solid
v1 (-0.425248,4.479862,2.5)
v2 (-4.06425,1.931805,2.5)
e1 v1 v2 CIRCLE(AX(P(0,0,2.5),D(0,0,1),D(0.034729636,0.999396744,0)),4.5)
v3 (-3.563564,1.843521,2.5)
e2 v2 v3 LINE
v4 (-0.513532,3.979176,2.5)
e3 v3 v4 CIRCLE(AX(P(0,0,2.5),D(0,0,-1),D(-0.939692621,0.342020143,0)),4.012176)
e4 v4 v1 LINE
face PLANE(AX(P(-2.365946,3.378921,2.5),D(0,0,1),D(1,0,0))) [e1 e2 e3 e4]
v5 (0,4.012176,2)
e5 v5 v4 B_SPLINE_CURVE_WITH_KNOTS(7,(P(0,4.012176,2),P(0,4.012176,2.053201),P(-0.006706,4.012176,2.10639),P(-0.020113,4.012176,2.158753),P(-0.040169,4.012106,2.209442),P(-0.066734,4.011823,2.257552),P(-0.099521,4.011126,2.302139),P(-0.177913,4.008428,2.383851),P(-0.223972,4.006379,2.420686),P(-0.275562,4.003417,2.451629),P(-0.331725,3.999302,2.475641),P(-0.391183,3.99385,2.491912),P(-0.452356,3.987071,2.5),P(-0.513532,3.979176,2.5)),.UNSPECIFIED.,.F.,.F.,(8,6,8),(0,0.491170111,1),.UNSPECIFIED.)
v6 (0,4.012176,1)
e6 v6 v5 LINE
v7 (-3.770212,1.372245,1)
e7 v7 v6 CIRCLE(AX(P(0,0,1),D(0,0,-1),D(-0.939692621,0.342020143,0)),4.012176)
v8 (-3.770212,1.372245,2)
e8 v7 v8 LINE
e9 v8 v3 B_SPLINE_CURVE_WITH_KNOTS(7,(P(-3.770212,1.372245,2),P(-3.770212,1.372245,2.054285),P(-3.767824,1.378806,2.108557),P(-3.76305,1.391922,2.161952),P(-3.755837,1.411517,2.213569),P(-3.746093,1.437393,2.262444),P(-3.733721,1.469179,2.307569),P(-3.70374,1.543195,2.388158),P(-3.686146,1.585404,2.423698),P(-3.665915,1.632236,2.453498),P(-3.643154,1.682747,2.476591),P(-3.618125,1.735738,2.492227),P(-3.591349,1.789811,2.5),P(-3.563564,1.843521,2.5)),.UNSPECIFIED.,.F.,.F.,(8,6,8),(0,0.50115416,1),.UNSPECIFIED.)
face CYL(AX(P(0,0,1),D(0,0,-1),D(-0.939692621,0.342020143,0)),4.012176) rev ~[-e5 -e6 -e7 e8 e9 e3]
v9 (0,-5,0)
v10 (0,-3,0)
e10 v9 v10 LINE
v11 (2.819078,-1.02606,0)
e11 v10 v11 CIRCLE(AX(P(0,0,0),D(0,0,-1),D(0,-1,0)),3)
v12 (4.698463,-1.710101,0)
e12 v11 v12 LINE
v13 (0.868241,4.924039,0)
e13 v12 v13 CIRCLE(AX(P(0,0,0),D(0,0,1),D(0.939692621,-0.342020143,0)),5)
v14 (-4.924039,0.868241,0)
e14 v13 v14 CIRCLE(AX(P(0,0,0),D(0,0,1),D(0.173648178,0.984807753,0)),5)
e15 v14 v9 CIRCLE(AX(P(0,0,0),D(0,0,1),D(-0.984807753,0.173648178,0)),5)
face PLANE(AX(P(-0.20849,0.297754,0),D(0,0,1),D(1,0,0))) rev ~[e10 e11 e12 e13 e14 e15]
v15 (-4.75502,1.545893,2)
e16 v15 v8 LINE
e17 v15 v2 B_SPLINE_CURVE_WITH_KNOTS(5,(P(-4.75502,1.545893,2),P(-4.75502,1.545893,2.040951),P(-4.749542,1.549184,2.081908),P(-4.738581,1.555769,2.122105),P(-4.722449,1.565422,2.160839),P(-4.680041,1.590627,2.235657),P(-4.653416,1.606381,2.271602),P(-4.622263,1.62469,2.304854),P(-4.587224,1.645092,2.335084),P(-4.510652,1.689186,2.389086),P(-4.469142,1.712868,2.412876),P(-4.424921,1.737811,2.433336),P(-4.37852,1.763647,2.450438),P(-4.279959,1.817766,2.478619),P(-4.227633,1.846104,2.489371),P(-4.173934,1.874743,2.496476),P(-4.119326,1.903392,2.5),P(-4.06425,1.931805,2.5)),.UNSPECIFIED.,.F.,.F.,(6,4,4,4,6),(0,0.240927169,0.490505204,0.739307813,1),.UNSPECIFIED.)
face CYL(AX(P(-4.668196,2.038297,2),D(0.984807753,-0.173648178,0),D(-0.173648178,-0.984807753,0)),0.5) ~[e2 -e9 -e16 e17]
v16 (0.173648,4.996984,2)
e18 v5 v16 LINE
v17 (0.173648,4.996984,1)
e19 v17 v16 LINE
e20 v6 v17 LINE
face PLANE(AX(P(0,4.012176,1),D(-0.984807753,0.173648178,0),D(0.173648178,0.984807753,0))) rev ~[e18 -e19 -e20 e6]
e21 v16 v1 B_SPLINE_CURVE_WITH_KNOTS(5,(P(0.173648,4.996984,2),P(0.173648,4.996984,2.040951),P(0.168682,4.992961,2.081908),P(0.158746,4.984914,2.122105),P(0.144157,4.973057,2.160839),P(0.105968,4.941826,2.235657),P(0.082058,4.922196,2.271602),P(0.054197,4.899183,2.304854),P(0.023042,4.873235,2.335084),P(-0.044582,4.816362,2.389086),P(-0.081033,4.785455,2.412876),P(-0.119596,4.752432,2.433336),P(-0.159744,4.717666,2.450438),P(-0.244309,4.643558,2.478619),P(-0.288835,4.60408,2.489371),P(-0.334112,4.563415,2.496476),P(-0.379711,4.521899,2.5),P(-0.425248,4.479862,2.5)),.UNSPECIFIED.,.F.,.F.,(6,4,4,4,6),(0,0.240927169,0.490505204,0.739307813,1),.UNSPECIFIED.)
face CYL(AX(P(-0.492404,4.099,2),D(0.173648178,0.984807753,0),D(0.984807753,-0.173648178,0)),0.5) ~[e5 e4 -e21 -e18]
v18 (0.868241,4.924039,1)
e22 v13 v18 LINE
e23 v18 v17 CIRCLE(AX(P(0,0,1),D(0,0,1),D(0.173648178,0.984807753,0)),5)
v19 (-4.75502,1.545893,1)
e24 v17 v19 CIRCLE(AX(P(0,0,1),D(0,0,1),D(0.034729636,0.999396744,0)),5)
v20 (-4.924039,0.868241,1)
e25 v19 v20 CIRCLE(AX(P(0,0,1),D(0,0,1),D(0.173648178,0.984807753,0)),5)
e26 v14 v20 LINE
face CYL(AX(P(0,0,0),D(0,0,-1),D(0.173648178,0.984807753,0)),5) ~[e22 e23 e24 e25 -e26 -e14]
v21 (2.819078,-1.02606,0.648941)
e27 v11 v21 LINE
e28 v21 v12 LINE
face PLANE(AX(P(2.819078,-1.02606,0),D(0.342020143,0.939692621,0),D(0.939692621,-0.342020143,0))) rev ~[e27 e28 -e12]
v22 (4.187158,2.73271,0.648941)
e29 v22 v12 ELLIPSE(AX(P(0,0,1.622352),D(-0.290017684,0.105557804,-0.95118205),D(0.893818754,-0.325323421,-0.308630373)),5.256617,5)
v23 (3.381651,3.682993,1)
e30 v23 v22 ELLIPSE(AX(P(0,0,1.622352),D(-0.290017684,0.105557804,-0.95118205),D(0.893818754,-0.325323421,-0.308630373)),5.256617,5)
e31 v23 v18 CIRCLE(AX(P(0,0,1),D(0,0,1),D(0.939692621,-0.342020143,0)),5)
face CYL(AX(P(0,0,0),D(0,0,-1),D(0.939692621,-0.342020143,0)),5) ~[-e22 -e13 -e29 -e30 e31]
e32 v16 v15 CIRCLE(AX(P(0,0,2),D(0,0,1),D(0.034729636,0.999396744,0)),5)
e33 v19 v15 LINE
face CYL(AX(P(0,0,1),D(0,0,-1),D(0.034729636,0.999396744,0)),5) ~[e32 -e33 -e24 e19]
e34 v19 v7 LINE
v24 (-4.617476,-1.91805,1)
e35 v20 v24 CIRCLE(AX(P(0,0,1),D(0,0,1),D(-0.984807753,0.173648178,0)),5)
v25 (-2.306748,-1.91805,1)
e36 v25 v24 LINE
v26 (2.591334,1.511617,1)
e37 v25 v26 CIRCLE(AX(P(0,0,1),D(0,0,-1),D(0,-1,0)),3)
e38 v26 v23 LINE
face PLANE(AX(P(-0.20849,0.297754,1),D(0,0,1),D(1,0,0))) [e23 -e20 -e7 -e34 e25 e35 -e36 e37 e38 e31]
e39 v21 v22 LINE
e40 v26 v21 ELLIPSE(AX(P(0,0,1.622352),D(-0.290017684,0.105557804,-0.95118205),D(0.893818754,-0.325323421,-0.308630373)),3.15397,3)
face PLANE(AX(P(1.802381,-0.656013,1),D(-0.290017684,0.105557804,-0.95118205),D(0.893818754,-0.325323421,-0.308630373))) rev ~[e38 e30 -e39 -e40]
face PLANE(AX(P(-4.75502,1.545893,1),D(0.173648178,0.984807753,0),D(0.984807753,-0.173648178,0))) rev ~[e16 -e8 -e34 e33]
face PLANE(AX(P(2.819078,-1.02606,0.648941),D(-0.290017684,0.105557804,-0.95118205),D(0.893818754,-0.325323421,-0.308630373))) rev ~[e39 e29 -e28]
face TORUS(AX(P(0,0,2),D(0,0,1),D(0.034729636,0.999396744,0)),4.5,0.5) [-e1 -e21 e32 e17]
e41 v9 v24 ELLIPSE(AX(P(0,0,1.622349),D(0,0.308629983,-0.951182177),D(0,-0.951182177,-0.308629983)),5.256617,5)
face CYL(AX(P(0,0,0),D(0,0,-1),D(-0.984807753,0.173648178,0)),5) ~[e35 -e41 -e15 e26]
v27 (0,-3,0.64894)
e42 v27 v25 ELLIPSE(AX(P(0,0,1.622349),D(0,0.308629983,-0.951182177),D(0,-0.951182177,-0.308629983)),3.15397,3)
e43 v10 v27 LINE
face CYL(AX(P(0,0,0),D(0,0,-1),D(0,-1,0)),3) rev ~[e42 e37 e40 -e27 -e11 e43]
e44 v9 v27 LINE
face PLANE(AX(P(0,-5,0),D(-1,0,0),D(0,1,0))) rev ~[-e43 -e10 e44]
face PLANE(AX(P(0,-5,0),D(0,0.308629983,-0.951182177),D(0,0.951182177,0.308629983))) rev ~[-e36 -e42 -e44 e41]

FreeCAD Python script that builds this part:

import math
import FreeCAD as App
import Part
import Sketcher
from FreeCAD import Vector
Q = App.Units.Quantity


def edges_at(feature, points):
    """Names of the edges that pass closest to the given points."""
    edges = feature.Shape.Edges
    near = lambda p: min(range(len(edges)), key=lambda i: edges[i].distToShape(Part.Vertex(*p))[0])
    return sorted({f"Edge{near(p) + 1}" for p in points})


def add_polygon(sketch, points):
    """Adds a closed chain of lines whose ends are joined by coincident constraints."""
    first, n = sketch.GeometryCount, len(points)
    for a, b in zip(points, points[1:] + points[:1]):
        sketch.addGeometry(Part.LineSegment(App.Vector(*a, 0), App.Vector(*b, 0)), False)
    for i in range(n):
        sketch.addConstraint(Sketcher.Constraint("Coincident", first + i, 2, first + (i + 1) % n, 1))

doc = App.newDocument("Part")
body = doc.addObject("PartDesign::Body", "Body")

# Sketch on XY plane
sketch1 = body.newObject("Sketcher::SketchObject", "Sketch")
sketch1.AttachmentSupport = (doc.getObject("XY_Plane"), [""])
sketch1.MapMode = "FlatFace"
sketch1.addGeometry(Part.ArcOfCircle(Part.Circle(Vector(0, 0, 0), Vector(0, 0, 1), 3), math.radians(-20), math.radians(270)), False)
sketch1.addGeometry(Part.LineSegment(Vector(2.8, -1, 0), Vector(4.7, -1.7, 0)), False)
sketch1.addGeometry(Part.ArcOfCircle(Part.Circle(Vector(0, 0, 0), Vector(0, 0, 1), 5), math.radians(-20), math.radians(80)), False)
sketch1.addGeometry(Part.ArcOfCircle(Part.Circle(Vector(0, 0, 0), Vector(0, 0, 1), 5), math.radians(80), math.radians(170)), False)
sketch1.addGeometry(Part.ArcOfCircle(Part.Circle(Vector(0, 0, 0), Vector(0, 0, 1), 5), math.radians(170), math.radians(270)), False)
sketch1.addGeometry(Part.LineSegment(Vector(0, -5, 0), Vector(0, -3, 0)), False)
sketch1.addConstraint(Sketcher.Constraint("Coincident", 0, 1, 1, 1))
sketch1.addConstraint(Sketcher.Constraint("Coincident", 1, 2, 2, 1))
sketch1.addConstraint(Sketcher.Constraint("Tangent", 2, 2, 3, 1))
sketch1.addConstraint(Sketcher.Constraint("Tangent", 3, 2, 4, 1))
sketch1.addConstraint(Sketcher.Constraint("Coincident", 4, 2, 5, 1))
sketch1.addConstraint(Sketcher.Constraint("Coincident", 5, 2, 0, 2))
sketch1.addConstraint(Sketcher.Constraint("Vertical", 5))
sketch1.addConstraint(Sketcher.Constraint("Coincident", 0, 3, -1, 1))
sketch1.addConstraint(Sketcher.Constraint("Coincident", 2, 3, -1, 1))
sketch1.addConstraint(Sketcher.Constraint("Coincident", 4, 3, -1, 1))
sketch1.addConstraint(Sketcher.Constraint("PointOnObject", 4, 2, -2))
sketch1.addConstraint(Sketcher.Constraint("Radius", 0, Q("3 mm")))
sketch1.addConstraint(Sketcher.Constraint("Radius", 2, Q("5 mm")))
sketch1.addConstraint(Sketcher.Constraint("Angle", 1, Q("-20 deg")))
sketch1.addConstraint(Sketcher.Constraint("DistanceY", 1, 2, -1, 1, Q("1.710101 mm")))
sketch1.addConstraint(Sketcher.Constraint("DistanceY", 0, 1, 2, 2, Q("5.950099 mm")))
sketch1.addConstraint(Sketcher.Constraint("DistanceX", 3, 2, -1, 1, Q("4.924039 mm")))
pad1 = body.newObject("PartDesign::Pad", "Pad")
pad1.Profile = sketch1
pad1.Length = 1

# Sketch on an angled plane
sketch2 = body.newObject("Sketcher::SketchObject", "Sketch001")
sketch2.Placement = App.Placement(Vector(0, 0, 0), App.Rotation(Vector(0.939692621, -0.342020143, 0), Vector(0, 0, 1), Vector(-0.342020143, -0.939692621, 0), "ZXY"))
add_polygon(sketch2, [(3, 0.6), (5, 0), (5, 1), (1.9, 1)])  # lines 0-3
sketch2.addConstraint(Sketcher.Constraint("Vertical", 1))
sketch2.addConstraint(Sketcher.Constraint("Horizontal", 2))
sketch2.addConstraint(Sketcher.Constraint("PointOnObject", 0, 2, -1))
sketch2.addConstraint(Sketcher.Constraint("Parallel", 0, 3))
sketch2.addConstraint(Sketcher.Constraint("DistanceY", 1, 1, 1, 2, Q("1 mm")))
sketch2.addConstraint(Sketcher.Constraint("DistanceX", -1, 1, 0, 2, Q("5 mm")))
sketch2.addConstraint(Sketcher.Constraint("DistanceX", -1, 1, 3, 2, Q("3 mm")))
sketch2.addConstraint(Sketcher.Constraint("DistanceX", 2, 2, 2, 1, Q("3.081946 mm")))
pocket1 = body.newObject("PartDesign::Pocket", "Pocket")
pocket1.Profile = sketch2
pocket1.Length = 25

# Sketch on YZ plane
sketch3 = body.newObject("Sketcher::SketchObject", "Sketch002")
sketch3.AttachmentSupport = (doc.getObject("YZ_Plane"), [""])
sketch3.MapMode = "FlatFace"
add_polygon(sketch3, [(-5, 1), (-5, 0), (-1.9, 1)])  # lines 0-2
sketch3.addConstraint(Sketcher.Constraint("Vertical", 0))
sketch3.addConstraint(Sketcher.Constraint("Horizontal", 2))
sketch3.addConstraint(Sketcher.Constraint("PointOnObject", 0, 2, -1))
sketch3.addConstraint(Sketcher.Constraint("DistanceY", 0, 2, 0, 1, Q("1 mm")))
sketch3.addConstraint(Sketcher.Constraint("DistanceX", 0, 2, -1, 1, Q("5 mm")))
sketch3.addConstraint(Sketcher.Constraint("DistanceX", 2, 2, 2, 1, Q("3.08195 mm")))
pocket2 = body.newObject("PartDesign::Pocket", "Pocket001")
pocket2.Profile = sketch3
pocket2.Length = 25

# Sketch on XY plane
sketch4 = body.newObject("Sketcher::SketchObject", "Sketch003")
sketch4.AttachmentSupport = (doc.getObject("XY_Plane"), [""])
sketch4.MapMode = "FlatFace"
sketch4.AttachmentOffset = App.Placement(Vector(0, 0, 1), App.Rotation())
sketch4.addGeometry(Part.ArcOfCircle(Part.Circle(Vector(0, 0, 0), Vector(0, 0, 1), 4), math.radians(90), math.radians(160)), False)
sketch4.addGeometry(Part.LineSegment(Vector(0, 4, 0), Vector(0.2, 5, 0)), False)
sketch4.addGeometry(Part.ArcOfCircle(Part.Circle(Vector(0, 0, 0), Vector(0, 0, 1), 5), math.radians(88), math.radians(162)), False)
sketch4.addGeometry(Part.LineSegment(Vector(-4.8, 1.5, 0), Vector(-3.8, 1.4, 0)), False)
sketch4.addConstraint(Sketcher.Constraint("Coincident", 0, 1, 1, 1))
sketch4.addConstraint(Sketcher.Constraint("Coincident", 1, 2, 2, 1))
sketch4.addConstraint(Sketcher.Constraint("Coincident", 2, 2, 3, 1))
sketch4.addConstraint(Sketcher.Constraint("Coincident", 3, 2, 0, 2))
sketch4.addConstraint(Sketcher.Constraint("Coincident", 0, 3, -1, 1))
sketch4.addConstraint(Sketcher.Constraint("Coincident", 2, 3, -1, 1))
sketch4.addConstraint(Sketcher.Constraint("PointOnObject", 0, 1, -2))
sketch4.addConstraint(Sketcher.Constraint("Perpendicular", 1, 3))
sketch4.addConstraint(Sketcher.Constraint("Equal", 1, 3))
sketch4.addConstraint(Sketcher.Constraint("Radius", 2, Q("5 mm")))
sketch4.addConstraint(Sketcher.Constraint("Angle", 1, Q("80 deg")))
sketch4.addConstraint(Sketcher.Constraint("Distance", 1, Q("1 mm")))
pad2 = body.newObject("PartDesign::Pad", "Pad001")
pad2.Profile = sketch4
pad2.Length = 1.5
doc.recompute()

fillet = body.newObject("PartDesign::Fillet", "Fillet")
fillet.Base = (pad2, edges_at(pad2, [(-4.263, 1.459, 2.5), (0.087, 4.505, 2.5), (-2.868, 4.096, 2.5)]))
fillet.Radius = 0.5

doc.recompute()
